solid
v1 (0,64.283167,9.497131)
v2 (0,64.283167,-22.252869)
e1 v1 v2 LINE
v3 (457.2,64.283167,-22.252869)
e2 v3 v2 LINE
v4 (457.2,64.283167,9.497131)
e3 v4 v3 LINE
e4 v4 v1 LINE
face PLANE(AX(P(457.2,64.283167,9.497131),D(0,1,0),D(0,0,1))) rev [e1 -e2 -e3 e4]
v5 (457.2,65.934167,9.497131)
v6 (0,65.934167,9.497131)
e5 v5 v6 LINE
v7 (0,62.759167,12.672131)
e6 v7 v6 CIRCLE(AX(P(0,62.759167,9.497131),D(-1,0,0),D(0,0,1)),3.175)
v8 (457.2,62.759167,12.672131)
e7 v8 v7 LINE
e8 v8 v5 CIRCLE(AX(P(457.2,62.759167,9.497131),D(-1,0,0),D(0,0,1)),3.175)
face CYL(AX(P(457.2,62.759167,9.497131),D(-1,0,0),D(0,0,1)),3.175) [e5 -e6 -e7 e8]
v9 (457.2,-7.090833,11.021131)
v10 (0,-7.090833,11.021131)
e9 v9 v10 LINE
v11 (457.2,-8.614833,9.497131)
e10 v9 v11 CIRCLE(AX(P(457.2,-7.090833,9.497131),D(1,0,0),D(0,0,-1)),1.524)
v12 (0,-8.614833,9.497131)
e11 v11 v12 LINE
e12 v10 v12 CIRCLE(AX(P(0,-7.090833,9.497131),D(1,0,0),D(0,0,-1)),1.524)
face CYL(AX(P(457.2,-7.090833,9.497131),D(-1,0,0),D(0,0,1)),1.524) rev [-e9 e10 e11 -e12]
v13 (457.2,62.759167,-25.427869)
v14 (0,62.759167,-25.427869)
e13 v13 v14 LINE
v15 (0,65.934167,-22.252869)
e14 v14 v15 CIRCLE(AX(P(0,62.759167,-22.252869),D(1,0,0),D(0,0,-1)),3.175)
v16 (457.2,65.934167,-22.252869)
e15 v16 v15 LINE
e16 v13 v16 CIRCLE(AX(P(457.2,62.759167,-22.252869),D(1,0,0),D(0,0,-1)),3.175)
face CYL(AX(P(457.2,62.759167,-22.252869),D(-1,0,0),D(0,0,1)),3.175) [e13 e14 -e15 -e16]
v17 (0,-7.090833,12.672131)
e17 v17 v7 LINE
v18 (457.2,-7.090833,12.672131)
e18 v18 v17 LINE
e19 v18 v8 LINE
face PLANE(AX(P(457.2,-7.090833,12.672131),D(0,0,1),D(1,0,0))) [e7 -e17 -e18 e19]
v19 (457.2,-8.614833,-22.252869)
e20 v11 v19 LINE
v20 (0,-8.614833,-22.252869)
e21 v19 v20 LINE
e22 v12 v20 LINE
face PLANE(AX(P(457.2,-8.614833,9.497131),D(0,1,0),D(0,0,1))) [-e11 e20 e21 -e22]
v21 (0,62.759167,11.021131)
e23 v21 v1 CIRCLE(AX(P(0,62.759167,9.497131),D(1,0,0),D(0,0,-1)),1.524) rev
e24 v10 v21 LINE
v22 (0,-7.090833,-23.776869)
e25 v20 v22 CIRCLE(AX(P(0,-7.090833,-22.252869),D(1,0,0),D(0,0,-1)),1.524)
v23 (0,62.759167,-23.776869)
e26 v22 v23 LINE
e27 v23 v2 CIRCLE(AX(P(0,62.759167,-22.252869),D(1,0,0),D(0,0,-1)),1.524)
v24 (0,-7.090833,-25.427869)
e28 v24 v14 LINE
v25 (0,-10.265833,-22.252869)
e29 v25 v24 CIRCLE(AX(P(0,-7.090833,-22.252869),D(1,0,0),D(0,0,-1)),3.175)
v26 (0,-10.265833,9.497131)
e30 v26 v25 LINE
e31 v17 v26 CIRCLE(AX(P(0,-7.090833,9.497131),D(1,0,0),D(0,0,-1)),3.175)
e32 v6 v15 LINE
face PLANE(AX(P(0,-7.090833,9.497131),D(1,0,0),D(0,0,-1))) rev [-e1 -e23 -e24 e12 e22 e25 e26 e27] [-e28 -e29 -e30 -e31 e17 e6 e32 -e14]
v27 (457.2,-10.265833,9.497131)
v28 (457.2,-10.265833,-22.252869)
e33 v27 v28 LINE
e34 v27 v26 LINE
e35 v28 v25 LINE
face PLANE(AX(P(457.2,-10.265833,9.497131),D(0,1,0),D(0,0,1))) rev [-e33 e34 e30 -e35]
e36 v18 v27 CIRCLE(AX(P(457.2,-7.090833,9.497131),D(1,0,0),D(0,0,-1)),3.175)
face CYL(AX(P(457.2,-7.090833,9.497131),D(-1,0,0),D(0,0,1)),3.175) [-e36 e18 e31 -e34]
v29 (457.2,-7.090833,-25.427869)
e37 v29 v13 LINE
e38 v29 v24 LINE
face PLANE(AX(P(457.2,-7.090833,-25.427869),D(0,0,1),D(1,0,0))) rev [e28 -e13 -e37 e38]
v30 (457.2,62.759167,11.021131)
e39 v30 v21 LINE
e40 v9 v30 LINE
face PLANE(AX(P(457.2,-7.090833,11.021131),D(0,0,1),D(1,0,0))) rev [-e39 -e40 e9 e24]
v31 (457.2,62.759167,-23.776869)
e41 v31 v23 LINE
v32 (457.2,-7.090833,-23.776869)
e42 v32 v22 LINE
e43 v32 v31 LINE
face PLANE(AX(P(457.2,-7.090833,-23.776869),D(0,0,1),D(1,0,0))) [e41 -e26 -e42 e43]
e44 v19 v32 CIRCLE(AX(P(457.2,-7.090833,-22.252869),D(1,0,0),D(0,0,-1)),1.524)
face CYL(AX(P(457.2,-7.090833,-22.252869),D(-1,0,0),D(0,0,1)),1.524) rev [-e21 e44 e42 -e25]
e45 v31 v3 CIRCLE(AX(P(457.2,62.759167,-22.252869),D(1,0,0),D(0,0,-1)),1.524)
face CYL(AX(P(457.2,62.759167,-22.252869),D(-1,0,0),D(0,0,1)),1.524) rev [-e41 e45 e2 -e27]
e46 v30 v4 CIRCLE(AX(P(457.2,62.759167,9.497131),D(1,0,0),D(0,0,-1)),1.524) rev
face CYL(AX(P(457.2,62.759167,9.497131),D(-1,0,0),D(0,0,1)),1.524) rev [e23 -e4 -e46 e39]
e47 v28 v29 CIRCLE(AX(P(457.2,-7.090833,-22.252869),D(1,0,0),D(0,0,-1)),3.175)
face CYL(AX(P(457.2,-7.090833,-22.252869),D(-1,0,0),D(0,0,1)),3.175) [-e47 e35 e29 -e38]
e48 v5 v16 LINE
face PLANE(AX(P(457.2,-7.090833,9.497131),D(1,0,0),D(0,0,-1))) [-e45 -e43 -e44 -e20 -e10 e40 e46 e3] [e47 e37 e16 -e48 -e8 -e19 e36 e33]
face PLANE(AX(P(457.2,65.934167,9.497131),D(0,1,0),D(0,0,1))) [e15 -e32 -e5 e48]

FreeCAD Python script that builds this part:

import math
import FreeCAD as App
import Part
import Sketcher
from FreeCAD import Vector
Q = App.Units.Quantity

doc = App.newDocument("Part")
params = doc.addObject("Spreadsheet::Sheet", "Params")
for row, (alias, value) in enumerate([
    ("sketch1_radius", "0.06 in"),
    ("sketch1_radius2", "0.125 in"),
    ("sketch1_width", "2.75 in"),
    ("sketch1_height", "1.25 in"),
    ("pad1_length", "18 in"),
], start=1):
    params.set(f"A{row}", alias)
    params.set(f"B{row}", "=" + value)
    params.setAlias(f"B{row}", alias)

body = doc.addObject("PartDesign::Body", "Body")

sketch1 = doc.addObject("Sketcher::SketchObject", "Sketch")
body.addObject(sketch1)
sketch1.AttachmentSupport = (doc.YZ_Plane, [""])
sketch1.MapMode = "FlatFace"
sketch1.addGeometry(Part.LineSegment(Vector(65.9, -22.3, 0), Vector(65.9, 9.5, 0)), False)
sketch1.addGeometry(Part.ArcOfCircle(Part.Circle(Vector(62.8, 9.5, 0), Vector(0, 0, 1), 3.2), math.radians(0), math.radians(90)), False)
sketch1.addGeometry(Part.LineSegment(Vector(62.8, 12.7, 0), Vector(-7.1, 12.7, 0)), False)
sketch1.addGeometry(Part.ArcOfCircle(Part.Circle(Vector(-7.1, 9.5, 0), Vector(0, 0, 1), 3.2), math.radians(90), math.radians(180)), False)
sketch1.addGeometry(Part.LineSegment(Vector(-10.3, 9.5, 0), Vector(-10.3, -22.3, 0)), False)
sketch1.addGeometry(Part.ArcOfCircle(Part.Circle(Vector(-7.1, -22.3, 0), Vector(0, 0, 1), 3.2), math.radians(180), math.radians(270)), False)
sketch1.addGeometry(Part.LineSegment(Vector(-7.1, -25.4, 0), Vector(62.8, -25.4, 0)), False)
sketch1.addGeometry(Part.ArcOfCircle(Part.Circle(Vector(62.8, -22.3, 0), Vector(0, 0, 1), 3.2), math.radians(-90), math.radians(0)), False)
sketch1.addGeometry(Part.LineSegment(Vector(64.3, 9.5, 0), Vector(64.3, -22.3, 0)), False)
sketch1.addGeometry(Part.ArcOfCircle(Part.Circle(Vector(62.8, -22.3, 0), Vector(0, 0, 1), 1.5), math.radians(-90), math.radians(0)), False)
sketch1.addGeometry(Part.LineSegment(Vector(62.8, -23.8, 0), Vector(-7.1, -23.8, 0)), False)
sketch1.addGeometry(Part.ArcOfCircle(Part.Circle(Vector(-7.1, -22.3, 0), Vector(0, 0, 1), 1.5), math.radians(180), math.radians(270)), False)
sketch1.addGeometry(Part.LineSegment(Vector(-8.6, -22.3, 0), Vector(-8.6, 9.5, 0)), False)
sketch1.addGeometry(Part.ArcOfCircle(Part.Circle(Vector(-7.1, 9.5, 0), Vector(0, 0, 1), 1.5), math.radians(90), math.radians(180)), False)
sketch1.addGeometry(Part.LineSegment(Vector(-7.1, 11, 0), Vector(62.8, 11, 0)), False)
sketch1.addGeometry(Part.ArcOfCircle(Part.Circle(Vector(62.8, 9.5, 0), Vector(0, 0, 1), 1.5), math.radians(0), math.radians(90)), False)
sketch1.addConstraint(Sketcher.Constraint("Tangent", 0, 2, 1, 1))
sketch1.addConstraint(Sketcher.Constraint("Tangent", 1, 2, 2, 1))
sketch1.addConstraint(Sketcher.Constraint("Tangent", 2, 2, 3, 1))
sketch1.addConstraint(Sketcher.Constraint("Tangent", 3, 2, 4, 1))
sketch1.addConstraint(Sketcher.Constraint("Tangent", 4, 2, 5, 1))
sketch1.addConstraint(Sketcher.Constraint("Tangent", 5, 2, 6, 1))
sketch1.addConstraint(Sketcher.Constraint("Tangent", 6, 2, 7, 1))
sketch1.addConstraint(Sketcher.Constraint("Tangent", 7, 2, 0, 1))
sketch1.addConstraint(Sketcher.Constraint("Tangent", 8, 2, 9, 2))
sketch1.addConstraint(Sketcher.Constraint("Tangent", 9, 1, 10, 1))
sketch1.addConstraint(Sketcher.Constraint("Tangent", 10, 2, 11, 2))
sketch1.addConstraint(Sketcher.Constraint("Tangent", 11, 1, 12, 1))
sketch1.addConstraint(Sketcher.Constraint("Tangent", 12, 2, 13, 2))
sketch1.addConstraint(Sketcher.Constraint("Tangent", 13, 1, 14, 1))
sketch1.addConstraint(Sketcher.Constraint("Tangent", 14, 2, 15, 2))
sketch1.addConstraint(Sketcher.Constraint("Tangent", 15, 1, 8, 1))
sketch1.addConstraint(Sketcher.Constraint("Vertical", 0))
sketch1.addConstraint(Sketcher.Constraint("Horizontal", 2))
sketch1.addConstraint(Sketcher.Constraint("Vertical", 4))
sketch1.addConstraint(Sketcher.Constraint("Horizontal", 6))
sketch1.addConstraint(Sketcher.Constraint("Vertical", 8))
sketch1.addConstraint(Sketcher.Constraint("Horizontal", 10))
sketch1.addConstraint(Sketcher.Constraint("Vertical", 12))
sketch1.addConstraint(Sketcher.Constraint("Horizontal", 14))
sketch1.addConstraint(Sketcher.Constraint("Coincident", 9, 3, 7, 3))
sketch1.addConstraint(Sketcher.Constraint("Coincident", 11, 3, 5, 3))
sketch1.addConstraint(Sketcher.Constraint("Coincident", 13, 3, 3, 3))
sketch1.addConstraint(Sketcher.Constraint("Equal", 1, 3))
sketch1.addConstraint(Sketcher.Constraint("Equal", 3, 5))
sketch1.addConstraint(Sketcher.Constraint("Equal", 5, 7))
sketch1.addConstraint(Sketcher.Constraint("Equal", 13, 15))
sketch1.addConstraint(Sketcher.Constraint("Radius", 9, Q("0.06 in")))
sketch1.addConstraint(Sketcher.Constraint("Radius", 1, Q("0.125 in")))
sketch1.addConstraint(Sketcher.Constraint("DistanceX", 2, 2, 2, 1, Q("2.75 in")))
sketch1.addConstraint(Sketcher.Constraint("DistanceY", 0, 1, 0, 2, Q("1.25 in")))
sketch1.addConstraint(Sketcher.Constraint("DistanceY", -1, 1, 1, 3, Q("9.497131 mm")))
sketch1.addConstraint(Sketcher.Constraint("DistanceX", -1, 1, 1, 3, Q("62.759167 mm")))
sketch1.setExpression("Constraints[31]", "Params.sketch1_radius")
sketch1.setExpression("Constraints[32]", "Params.sketch1_radius2")
sketch1.setExpression("Constraints[33]", "Params.sketch1_width")
sketch1.setExpression("Constraints[34]", "Params.sketch1_height")
pad1 = doc.addObject("PartDesign::Pad", "Pad")
body.addObject(pad1)
pad1.Profile = sketch1
pad1.setExpression("Length", "Params.pad1_length")

doc.recompute()
